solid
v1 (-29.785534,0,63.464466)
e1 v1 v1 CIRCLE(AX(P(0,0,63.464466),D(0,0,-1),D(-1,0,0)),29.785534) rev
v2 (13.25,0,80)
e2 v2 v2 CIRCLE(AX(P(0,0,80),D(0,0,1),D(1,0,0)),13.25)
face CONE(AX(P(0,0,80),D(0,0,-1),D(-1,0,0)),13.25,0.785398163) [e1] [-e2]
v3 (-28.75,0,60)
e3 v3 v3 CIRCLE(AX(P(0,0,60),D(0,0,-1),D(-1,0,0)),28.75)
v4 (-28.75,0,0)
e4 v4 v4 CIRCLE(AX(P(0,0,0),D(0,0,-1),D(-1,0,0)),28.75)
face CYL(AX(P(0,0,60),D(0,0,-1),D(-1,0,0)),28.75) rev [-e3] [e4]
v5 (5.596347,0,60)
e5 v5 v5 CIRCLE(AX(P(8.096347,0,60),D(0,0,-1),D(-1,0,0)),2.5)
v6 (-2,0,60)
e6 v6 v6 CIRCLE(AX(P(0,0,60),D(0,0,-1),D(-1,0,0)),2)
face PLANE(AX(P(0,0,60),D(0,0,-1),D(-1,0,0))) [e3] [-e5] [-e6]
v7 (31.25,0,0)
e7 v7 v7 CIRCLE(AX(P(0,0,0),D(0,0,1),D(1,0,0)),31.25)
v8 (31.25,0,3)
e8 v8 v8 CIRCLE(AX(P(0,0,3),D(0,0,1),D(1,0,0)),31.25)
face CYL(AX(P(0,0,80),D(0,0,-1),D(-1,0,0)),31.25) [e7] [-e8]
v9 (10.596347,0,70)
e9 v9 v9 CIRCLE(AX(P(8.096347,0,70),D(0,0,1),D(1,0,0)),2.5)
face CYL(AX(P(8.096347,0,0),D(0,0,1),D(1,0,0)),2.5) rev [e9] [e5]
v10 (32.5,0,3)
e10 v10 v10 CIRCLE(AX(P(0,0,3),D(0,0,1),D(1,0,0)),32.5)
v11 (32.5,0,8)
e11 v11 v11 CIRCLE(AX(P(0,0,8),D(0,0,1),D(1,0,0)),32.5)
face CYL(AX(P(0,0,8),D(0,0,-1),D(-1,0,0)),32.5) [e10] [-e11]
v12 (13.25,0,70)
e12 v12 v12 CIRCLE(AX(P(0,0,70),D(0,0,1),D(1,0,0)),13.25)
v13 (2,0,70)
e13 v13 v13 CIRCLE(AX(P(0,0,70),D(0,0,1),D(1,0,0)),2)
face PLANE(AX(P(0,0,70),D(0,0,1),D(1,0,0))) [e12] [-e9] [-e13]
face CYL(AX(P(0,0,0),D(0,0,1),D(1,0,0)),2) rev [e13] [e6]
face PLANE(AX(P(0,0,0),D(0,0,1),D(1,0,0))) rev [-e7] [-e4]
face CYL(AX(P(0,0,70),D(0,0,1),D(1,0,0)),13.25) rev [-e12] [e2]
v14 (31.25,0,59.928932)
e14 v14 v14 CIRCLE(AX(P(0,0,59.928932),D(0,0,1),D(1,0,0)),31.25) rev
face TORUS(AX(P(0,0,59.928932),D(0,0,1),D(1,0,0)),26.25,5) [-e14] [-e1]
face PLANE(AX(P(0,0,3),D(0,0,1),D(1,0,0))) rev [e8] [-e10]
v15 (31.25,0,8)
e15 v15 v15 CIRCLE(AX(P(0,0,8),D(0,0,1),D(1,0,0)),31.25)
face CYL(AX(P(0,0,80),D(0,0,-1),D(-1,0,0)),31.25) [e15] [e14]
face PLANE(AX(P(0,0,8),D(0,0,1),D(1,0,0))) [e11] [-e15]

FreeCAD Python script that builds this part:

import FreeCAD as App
import Part
import Sketcher
from FreeCAD import Vector


def edges_at(feature, points):
    """Names of the edges that pass closest to the given points."""
    edges = feature.Shape.Edges
    near = lambda p: min(range(len(edges)), key=lambda i: edges[i].distToShape(Part.Vertex(*p))[0])
    return sorted({f"Edge{near(p) + 1}" for p in points})

doc = App.newDocument("Part")
body = doc.addObject("PartDesign::Body", "Body")

# Sketch on XY plane
sketch1 = body.newObject("Sketcher::SketchObject", "Sketch")
sketch1.AttachmentSupport = (doc.getObject("XY_Plane"), [""])
sketch1.MapMode = "FlatFace"
sketch1.addGeometry(Part.Circle(Vector(0, 0, 0), Vector(0, 0, 1), 31.25), False)
sketch1.addConstraint([
    Sketcher.Constraint("Coincident", 0, 3, -1, 1),
    Sketcher.Constraint("Diameter", 0, 62.5),
])
pad1 = body.newObject("PartDesign::Pad", "Pad")
pad1.Profile = sketch1
pad1.Length = 80

# Sketch on XY plane
sketch2 = body.newObject("Sketcher::SketchObject", "Sketch001")
sketch2.AttachmentSupport = (doc.getObject("XY_Plane"), [""])
sketch2.MapMode = "FlatFace"
sketch2.AttachmentOffset = App.Placement(Vector(0, 0, 3), App.Rotation())
sketch2.addGeometry(Part.Circle(Vector(0, 0, 0), Vector(0, 0, 1), 32.5), False)
sketch2.addConstraint([
    Sketcher.Constraint("Coincident", 0, 3, -1, 1),
    Sketcher.Constraint("Diameter", 0, 65.0),
])
pad2 = body.newObject("PartDesign::Pad", "Pad001")
pad2.Profile = sketch2
pad2.Length = 5
doc.recompute()

chamfer = body.newObject("PartDesign::Chamfer", "Chamfer")
chamfer.Base = (pad2, edges_at(pad2, [(-31.25, 0, 80)]))
chamfer.Size = 18
doc.recompute()

fillet = body.newObject("PartDesign::Fillet", "Fillet")
fillet.Base = (chamfer, edges_at(chamfer, [(-31.25, 0, 62)]))
fillet.Radius = 5

# Sketch on XY plane
sketch3 = body.newObject("Sketcher::SketchObject", "Sketch002")
sketch3.AttachmentSupport = (doc.getObject("XY_Plane"), [""])
sketch3.MapMode = "FlatFace"
sketch3.AttachmentOffset = App.Placement(Vector(0, 0, 80), App.Rotation())
sketch3.addGeometry(Part.Circle(Vector(0, 0, 0), Vector(0, 0, 1), 13.25), False)
sketch3.addConstraint([
    Sketcher.Constraint("Coincident", 0, 3, -1, 1),
    Sketcher.Constraint("Diameter", 0, 26.5),
])
pocket1 = body.newObject("PartDesign::Pocket", "Pocket")
pocket1.Profile = sketch3
pocket1.Length = 10

# Sketch on XY plane
sketch4 = body.newObject("Sketcher::SketchObject", "Sketch003")
sketch4.AttachmentSupport = (doc.getObject("XY_Plane"), [""])
sketch4.MapMode = "FlatFace"
sketch4.addGeometry(Part.Circle(Vector(0, 0, 0), Vector(0, 0, 1), 28.75), False)
sketch4.addConstraint([
    Sketcher.Constraint("Coincident", 0, 3, -1, 1),
    Sketcher.Constraint("Diameter", 0, 57.5),
])
pocket2 = body.newObject("PartDesign::Pocket", "Pocket001")
pocket2.Profile = sketch4
pocket2.Length = 60
pocket2.Reversed = True

# Sketch on XY plane
sketch5 = body.newObject("Sketcher::SketchObject", "Sketch004")
sketch5.AttachmentSupport = (doc.getObject("XY_Plane"), [""])
sketch5.MapMode = "FlatFace"
sketch5.AttachmentOffset = App.Placement(Vector(0, 0, 70), App.Rotation())
sketch5.addGeometry([
    Part.Circle(Vector(0, 0, 0), Vector(0, 0, 1), 2),
    Part.Circle(Vector(8.096347, 0, 0), Vector(0, 0, 1), 2.5),
], False)
sketch5.addConstraint([
    Sketcher.Constraint("Coincident", 0, 3, -1, 1),
    Sketcher.Constraint("PointOnObject", 1, 3, -1),
    Sketcher.Constraint("Diameter", 0, 4.0),
    Sketcher.Constraint("Diameter", 1, 5.0),
    Sketcher.Constraint("DistanceX", -1, 1, 1, 3, 8.096347),
])
pocket3 = body.newObject("PartDesign::Pocket", "Pocket002")
pocket3.Profile = sketch5
pocket3.Type = "ThroughAll"

doc.recompute()
